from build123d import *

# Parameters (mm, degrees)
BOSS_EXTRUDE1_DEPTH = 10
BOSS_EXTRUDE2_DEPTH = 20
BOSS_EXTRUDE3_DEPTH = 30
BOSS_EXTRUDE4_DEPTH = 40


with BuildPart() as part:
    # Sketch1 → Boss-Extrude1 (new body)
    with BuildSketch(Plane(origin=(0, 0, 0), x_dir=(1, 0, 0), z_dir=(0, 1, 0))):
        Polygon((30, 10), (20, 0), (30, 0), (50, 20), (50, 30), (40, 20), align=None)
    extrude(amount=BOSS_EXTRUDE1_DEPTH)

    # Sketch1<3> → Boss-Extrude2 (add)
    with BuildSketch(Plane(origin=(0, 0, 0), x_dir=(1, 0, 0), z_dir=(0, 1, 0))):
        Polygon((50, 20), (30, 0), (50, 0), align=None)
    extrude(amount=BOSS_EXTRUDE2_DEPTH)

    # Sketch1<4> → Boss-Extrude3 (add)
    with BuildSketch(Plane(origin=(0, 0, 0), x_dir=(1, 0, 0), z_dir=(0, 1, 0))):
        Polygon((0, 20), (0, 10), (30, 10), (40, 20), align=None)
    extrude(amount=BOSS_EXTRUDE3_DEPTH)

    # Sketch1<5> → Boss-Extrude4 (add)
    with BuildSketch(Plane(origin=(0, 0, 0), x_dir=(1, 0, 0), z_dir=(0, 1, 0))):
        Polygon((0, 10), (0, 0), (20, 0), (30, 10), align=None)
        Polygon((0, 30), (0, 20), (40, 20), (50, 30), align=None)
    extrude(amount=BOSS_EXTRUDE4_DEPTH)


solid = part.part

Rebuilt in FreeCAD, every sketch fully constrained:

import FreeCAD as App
import Part
import Sketcher

doc = App.newDocument("Part")
params = doc.addObject("Spreadsheet::Sheet", "Params")
for row, (alias, value) in enumerate([
    ("sketch1_width", "10 mm"),
    ("pad1_length", "10 mm"),
    ("sketch2_width", "20 mm"),
    ("pad2_length", "20 mm"),
    ("sketch3_width", "30 mm"),
    ("sketch3_width2", "40 mm"),
    ("sketch3_height", "10 mm"),
    ("pad3_length", "30 mm"),
    ("sketch4_width", "20 mm"),
    ("sketch4_width2", "30 mm"),
    ("sketch4_width3", "40 mm"),
    ("sketch4_height", "10 mm"),
    ("pad4_length", "40 mm"),
], start=1):
    params.set(f"A{row}", alias)
    params.set(f"B{row}", "=" + value)
    params.setAlias(f"B{row}", alias)

body = doc.addObject("PartDesign::Body", "Body")

sketch1 = body.newObject("Sketcher::SketchObject", "Sketch")
sketch1.AttachmentSupport = (doc.getObject("XZ_Plane"), [""])
sketch1.MapMode = "FlatFace"
sketch1.addGeometry([
    Part.LineSegment(App.Vector(20, 0, 0), App.Vector(30, 0, 0)),
    Part.LineSegment(App.Vector(30, 0, 0), App.Vector(50, -20, 0)),
    Part.LineSegment(App.Vector(50, -20, 0), App.Vector(50, -30, 0)),
    Part.LineSegment(App.Vector(50, -30, 0), App.Vector(20, 0, 0)),
], False)
sketch1.addConstraint([
    Sketcher.Constraint("Coincident", 0, 2, 1, 1),
    Sketcher.Constraint("Coincident", 1, 2, 2, 1),
    Sketcher.Constraint("Coincident", 2, 2, 3, 1),
    Sketcher.Constraint("Coincident", 3, 2, 0, 1),
    Sketcher.Constraint("Horizontal", 0),
    Sketcher.Constraint("Vertical", 2),
    Sketcher.Constraint("PointOnObject", 0, 2, -1),
    Sketcher.Constraint("Parallel", 1, 3),
    Sketcher.Constraint("Equal", 0, 2),
    Sketcher.Constraint("DistanceX", 0, 1, 0, 2, 10.0),
    Sketcher.Constraint("DistanceX", -1, 1, 0, 2, 30.0),
    Sketcher.Constraint("DistanceX", -1, 1, 1, 2, 50.0),
])
sketch1.setExpression("Constraints[9]", "Params.sketch1_width")
pad1 = body.newObject("PartDesign::Pad", "Pad")
pad1.Profile = sketch1
pad1.setExpression("Length", "Params.pad1_length")
pad1.Reversed = True

sketch2 = body.newObject("Sketcher::SketchObject", "Sketch001")
sketch2.AttachmentSupport = (doc.getObject("XZ_Plane"), [""])
sketch2.MapMode = "FlatFace"
sketch2.addGeometry([
    Part.LineSegment(App.Vector(50, -20, 0), App.Vector(30, 0, 0)),
    Part.LineSegment(App.Vector(30, 0, 0), App.Vector(50, 0, 0)),
    Part.LineSegment(App.Vector(50, 0, 0), App.Vector(50, -20, 0)),
], False)
sketch2.addConstraint([
    Sketcher.Constraint("Coincident", 0, 2, 1, 1),
    Sketcher.Constraint("Coincident", 1, 2, 2, 1),
    Sketcher.Constraint("Coincident", 2, 2, 0, 1),
    Sketcher.Constraint("Horizontal", 1),
    Sketcher.Constraint("Vertical", 2),
    Sketcher.Constraint("PointOnObject", 0, 2, -1),
    Sketcher.Constraint("Equal", 1, 2),
    Sketcher.Constraint("DistanceX", 1, 1, 1, 2, 20.0),
    Sketcher.Constraint("DistanceX", -1, 1, 0, 2, 30.0),
])
sketch2.setExpression("Constraints[7]", "Params.sketch2_width")
pad2 = body.newObject("PartDesign::Pad", "Pad001")
pad2.Profile = sketch2
pad2.setExpression("Length", "Params.pad2_length")
pad2.Reversed = True

sketch3 = body.newObject("Sketcher::SketchObject", "Sketch002")
sketch3.AttachmentSupport = (doc.getObject("XZ_Plane"), [""])
sketch3.MapMode = "FlatFace"
sketch3.addGeometry([
    Part.LineSegment(App.Vector(0, -20, 0), App.Vector(0, -10, 0)),
    Part.LineSegment(App.Vector(0, -10, 0), App.Vector(30, -10, 0)),
    Part.LineSegment(App.Vector(30, -10, 0), App.Vector(40, -20, 0)),
    Part.LineSegment(App.Vector(40, -20, 0), App.Vector(0, -20, 0)),
], False)
sketch3.addConstraint([
    Sketcher.Constraint("Coincident", 0, 2, 1, 1),
    Sketcher.Constraint("Coincident", 1, 2, 2, 1),
    Sketcher.Constraint("Coincident", 2, 2, 3, 1),
    Sketcher.Constraint("Coincident", 3, 2, 0, 1),
    Sketcher.Constraint("Vertical", 0),
    Sketcher.Constraint("Horizontal", 1),
    Sketcher.Constraint("Horizontal", 3),
    Sketcher.Constraint("PointOnObject", 0, 2, -2),
    Sketcher.Constraint("DistanceX", 1, 1, 1, 2, 30.0),
    Sketcher.Constraint("DistanceX", 3, 2, 3, 1, 40.0),
    Sketcher.Constraint("DistanceY", 0, 1, 0, 2, 10.0),
    Sketcher.Constraint("DistanceY", 0, 2, -1, 1, 10.0),
])
sketch3.setExpression("Constraints[8]", "Params.sketch3_width")
sketch3.setExpression("Constraints[9]", "Params.sketch3_width2")
sketch3.setExpression("Constraints[10]", "Params.sketch3_height")
pad3 = body.newObject("PartDesign::Pad", "Pad002")
pad3.Profile = sketch3
pad3.setExpression("Length", "Params.pad3_length")
pad3.Reversed = True

sketch4 = body.newObject("Sketcher::SketchObject", "Sketch003")
sketch4.AttachmentSupport = (doc.getObject("XZ_Plane"), [""])
sketch4.MapMode = "FlatFace"
sketch4.addGeometry([
    Part.LineSegment(App.Vector(0, -10, 0), App.Vector(0, 0, 0)),
    Part.LineSegment(App.Vector(0, 0, 0), App.Vector(20, 0, 0)),
    Part.LineSegment(App.Vector(20, 0, 0), App.Vector(30, -10, 0)),
    Part.LineSegment(App.Vector(30, -10, 0), App.Vector(0, -10, 0)),
    Part.LineSegment(App.Vector(0, -30, 0), App.Vector(0, -20, 0)),
    Part.LineSegment(App.Vector(0, -20, 0), App.Vector(40, -20, 0)),
    Part.LineSegment(App.Vector(40, -20, 0), App.Vector(50, -30, 0)),
    Part.LineSegment(App.Vector(50, -30, 0), App.Vector(0, -30, 0)),
], False)
sketch4.addConstraint([
    Sketcher.Constraint("Coincident", 0, 2, 1, 1),
    Sketcher.Constraint("Coincident", 1, 2, 2, 1),
    Sketcher.Constraint("Coincident", 2, 2, 3, 1),
    Sketcher.Constraint("Coincident", 3, 2, 0, 1),
    Sketcher.Constraint("Coincident", 4, 2, 5, 1),
    Sketcher.Constraint("Coincident", 5, 2, 6, 1),
    Sketcher.Constraint("Coincident", 6, 2, 7, 1),
    Sketcher.Constraint("Coincident", 7, 2, 4, 1),
    Sketcher.Constraint("Vertical", 0),
    Sketcher.Constraint("Horizontal", 1),
    Sketcher.Constraint("Horizontal", 3),
    Sketcher.Constraint("Vertical", 4),
    Sketcher.Constraint("Horizontal", 5),
    Sketcher.Constraint("Horizontal", 7),
    Sketcher.Constraint("Coincident", 0, 2, -1, 1),
    Sketcher.Constraint("PointOnObject", 4, 2, -2),
    Sketcher.Constraint("Parallel", 2, 6),
    Sketcher.Constraint("Equal", 0, 4),
    Sketcher.Constraint("DistanceX", 1, 1, 1, 2, 20.0),
    Sketcher.Constraint("DistanceX", 3, 2, 3, 1, 30.0),
    Sketcher.Constraint("DistanceX", 5, 1, 5, 2, 40.0),
    Sketcher.Constraint("DistanceY", 0, 1, 0, 2, 10.0),
    Sketcher.Constraint("DistanceY", 4, 2, -1, 1, 20.0),
])
sketch4.setExpression("Constraints[18]", "Params.sketch4_width")
sketch4.setExpression("Constraints[19]", "Params.sketch4_width2")
sketch4.setExpression("Constraints[20]", "Params.sketch4_width3")
sketch4.setExpression("Constraints[21]", "Params.sketch4_height")
pad4 = body.newObject("PartDesign::Pad", "Pad003")
pad4.Profile = sketch4
pad4.setExpression("Length", "Params.pad4_length")
pad4.Reversed = True

doc.recompute()
